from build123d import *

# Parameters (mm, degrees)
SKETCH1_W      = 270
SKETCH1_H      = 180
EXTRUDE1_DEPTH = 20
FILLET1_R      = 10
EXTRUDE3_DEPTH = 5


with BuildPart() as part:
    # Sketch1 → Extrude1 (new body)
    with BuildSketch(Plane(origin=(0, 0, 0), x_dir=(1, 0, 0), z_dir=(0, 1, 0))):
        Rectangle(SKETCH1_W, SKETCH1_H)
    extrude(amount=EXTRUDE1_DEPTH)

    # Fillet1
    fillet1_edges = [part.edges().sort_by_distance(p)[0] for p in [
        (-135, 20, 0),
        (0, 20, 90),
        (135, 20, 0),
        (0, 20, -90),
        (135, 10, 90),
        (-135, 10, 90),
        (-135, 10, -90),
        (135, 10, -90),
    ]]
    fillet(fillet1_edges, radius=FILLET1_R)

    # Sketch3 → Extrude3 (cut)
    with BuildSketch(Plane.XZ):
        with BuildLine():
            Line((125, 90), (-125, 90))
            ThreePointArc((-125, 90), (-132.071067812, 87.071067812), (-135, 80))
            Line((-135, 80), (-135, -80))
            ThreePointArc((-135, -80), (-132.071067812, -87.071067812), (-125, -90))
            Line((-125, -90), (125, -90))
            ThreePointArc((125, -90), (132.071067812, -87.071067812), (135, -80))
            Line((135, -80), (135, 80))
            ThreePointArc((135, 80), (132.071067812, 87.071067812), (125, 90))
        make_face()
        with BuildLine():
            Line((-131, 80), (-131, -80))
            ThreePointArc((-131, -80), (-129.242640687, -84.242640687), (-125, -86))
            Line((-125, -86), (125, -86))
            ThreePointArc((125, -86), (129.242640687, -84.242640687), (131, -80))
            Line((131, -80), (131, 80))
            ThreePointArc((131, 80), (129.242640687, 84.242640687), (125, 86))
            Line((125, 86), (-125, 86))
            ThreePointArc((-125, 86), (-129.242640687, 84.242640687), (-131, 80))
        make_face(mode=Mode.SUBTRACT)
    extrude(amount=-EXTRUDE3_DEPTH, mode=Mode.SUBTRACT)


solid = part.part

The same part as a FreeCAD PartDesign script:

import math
import FreeCAD as App
import Part
import Sketcher
Q = App.Units.Quantity


def edges_at(feature, points):
    """Names of the edges that pass closest to the given points."""
    edges = feature.Shape.Edges
    near = lambda p: min(range(len(edges)), key=lambda i: edges[i].distToShape(Part.Vertex(*p))[0])
    return sorted({f"Edge{near(p) + 1}" for p in points})

doc = App.newDocument("Part")
body = doc.addObject("PartDesign::Body", "Body")

# Sketch on XZ plane
sketch1 = doc.addObject("Sketcher::SketchObject", "Sketch")
body.addObject(sketch1)
sketch1.AttachmentSupport = (doc.XZ_Plane, [""])
sketch1.MapMode = "FlatFace"
sketch1.addGeometry([
    Part.LineSegment(App.Vector(-135, -90, 0), App.Vector(-135, 90, 0)),
    Part.LineSegment(App.Vector(-135, 90, 0), App.Vector(135, 90, 0)),
    Part.LineSegment(App.Vector(135, 90, 0), App.Vector(135, -90, 0)),
    Part.LineSegment(App.Vector(135, -90, 0), App.Vector(-135, -90, 0)),
], False)
sketch1.addConstraint([
    Sketcher.Constraint("Coincident", 0, 2, 1, 1),
    Sketcher.Constraint("Coincident", 1, 2, 2, 1),
    Sketcher.Constraint("Coincident", 2, 2, 3, 1),
    Sketcher.Constraint("Coincident", 3, 2, 0, 1),
    Sketcher.Constraint("Vertical", 0),
    Sketcher.Constraint("Horizontal", 1),
    Sketcher.Constraint("Vertical", 2),
    Sketcher.Constraint("Horizontal", 3),
    Sketcher.Constraint("Symmetric", 0, 2, 2, 2, -1, 1),
    Sketcher.Constraint("DistanceX", 1, 1, 1, 2, Q("270 mm")),
    Sketcher.Constraint("DistanceY", 0, 1, 0, 2, Q("180 mm")),
])
pad1 = doc.addObject("PartDesign::Pad", "Pad")
body.addObject(pad1)
pad1.Profile = sketch1
pad1.Length = 20
pad1.Reversed = True
doc.recompute()

fillet = doc.addObject("PartDesign::Fillet", "Fillet")
body.addObject(fillet)
fillet.Base = (pad1, edges_at(pad1, [
    (-135, 20, 0),
    (0, 20, 90),
    (135, 20, 0),
    (0, 20, -90),
    (135, 10, 90),
    (-135, 10, 90),
    (-135, 10, -90),
    (135, 10, -90),
]))
fillet.Radius = 10

# Sketch on XZ plane
sketch2 = doc.addObject("Sketcher::SketchObject", "Sketch001")
body.addObject(sketch2)
sketch2.AttachmentSupport = (doc.XZ_Plane, [""])
sketch2.MapMode = "FlatFace"
sketch2.addGeometry([
    Part.LineSegment(App.Vector(125, 90, 0), App.Vector(-125, 90, 0)),  # 0
    Part.ArcOfCircle(Part.Circle(App.Vector(-125, 80, 0), App.Vector(0, 0, 1), 10), math.radians(90), math.radians(180)),  # 1
    Part.LineSegment(App.Vector(-135, 80, 0), App.Vector(-135, -80, 0)),  # 2
    Part.ArcOfCircle(Part.Circle(App.Vector(-125, -80, 0), App.Vector(0, 0, 1), 10), math.radians(180), math.radians(270)),  # 3
    Part.LineSegment(App.Vector(-125, -90, 0), App.Vector(125, -90, 0)),  # 4
    Part.ArcOfCircle(Part.Circle(App.Vector(125, -80, 0), App.Vector(0, 0, 1), 10), math.radians(-90), math.radians(0)),  # 5
    Part.LineSegment(App.Vector(135, -80, 0), App.Vector(135, 80, 0)),  # 6
    Part.ArcOfCircle(Part.Circle(App.Vector(125, 80, 0), App.Vector(0, 0, 1), 10), math.radians(0), math.radians(90)),  # 7
    Part.LineSegment(App.Vector(-131, -80, 0), App.Vector(-131, 80, 0)),  # 8
    Part.ArcOfCircle(Part.Circle(App.Vector(-125, 80, 0), App.Vector(0, 0, 1), 6), math.radians(90), math.radians(180)),  # 9
    Part.LineSegment(App.Vector(-125, 86, 0), App.Vector(125, 86, 0)),  # 10
    Part.ArcOfCircle(Part.Circle(App.Vector(125, 80, 0), App.Vector(0, 0, 1), 6), math.radians(0), math.radians(90)),  # 11
    Part.LineSegment(App.Vector(131, 80, 0), App.Vector(131, -80, 0)),  # 12
    Part.ArcOfCircle(Part.Circle(App.Vector(125, -80, 0), App.Vector(0, 0, 1), 6), math.radians(-90), math.radians(0)),  # 13
    Part.LineSegment(App.Vector(125, -86, 0), App.Vector(-125, -86, 0)),  # 14
    Part.ArcOfCircle(Part.Circle(App.Vector(-125, -80, 0), App.Vector(0, 0, 1), 6), math.radians(180), math.radians(270)),  # 15
], False)
sketch2.addConstraint([
    Sketcher.Constraint("Tangent", 0, 2, 1, 1),
    Sketcher.Constraint("Tangent", 1, 2, 2, 1),
    Sketcher.Constraint("Tangent", 2, 2, 3, 1),
    Sketcher.Constraint("Tangent", 3, 2, 4, 1),
    Sketcher.Constraint("Tangent", 4, 2, 5, 1),
    Sketcher.Constraint("Tangent", 5, 2, 6, 1),
    Sketcher.Constraint("Tangent", 6, 2, 7, 1),
    Sketcher.Constraint("Tangent", 7, 2, 0, 1),
    Sketcher.Constraint("Tangent", 8, 2, 9, 2),
    Sketcher.Constraint("Tangent", 9, 1, 10, 1),
    Sketcher.Constraint("Tangent", 10, 2, 11, 2),
    Sketcher.Constraint("Tangent", 11, 1, 12, 1),
    Sketcher.Constraint("Tangent", 12, 2, 13, 2),
    Sketcher.Constraint("Tangent", 13, 1, 14, 1),
    Sketcher.Constraint("Tangent", 14, 2, 15, 2),
    Sketcher.Constraint("Tangent", 15, 1, 8, 1),
    Sketcher.Constraint("Horizontal", 0),
    Sketcher.Constraint("Vertical", 2),
    Sketcher.Constraint("Horizontal", 4),
    Sketcher.Constraint("Vertical", 6),
    Sketcher.Constraint("Vertical", 8),
    Sketcher.Constraint("Horizontal", 10),
    Sketcher.Constraint("Vertical", 12),
    Sketcher.Constraint("Horizontal", 14),
    Sketcher.Constraint("Coincident", 9, 3, 1, 3),
    Sketcher.Constraint("Coincident", 11, 3, 7, 3),
    Sketcher.Constraint("Coincident", 13, 3, 5, 3),
    Sketcher.Constraint("Equal", 1, 3),
    Sketcher.Constraint("Equal", 3, 5),
    Sketcher.Constraint("Equal", 5, 7),
    Sketcher.Constraint("Equal", 13, 15),
    Sketcher.Constraint("Symmetric", 1, 3, 5, 3, -1, 1),
    Sketcher.Constraint("Radius", 1, Q("10 mm")),
    Sketcher.Constraint("Radius", 9, Q("6 mm")),
    Sketcher.Constraint("DistanceX", 0, 2, 0, 1, Q("250 mm")),
    Sketcher.Constraint("DistanceY", 2, 2, 2, 1, Q("160 mm")),
])
pocket1 = doc.addObject("PartDesign::Pocket", "Pocket")
body.addObject(pocket1)
pocket1.Profile = sketch2
pocket1.Length = 5

doc.recompute()
